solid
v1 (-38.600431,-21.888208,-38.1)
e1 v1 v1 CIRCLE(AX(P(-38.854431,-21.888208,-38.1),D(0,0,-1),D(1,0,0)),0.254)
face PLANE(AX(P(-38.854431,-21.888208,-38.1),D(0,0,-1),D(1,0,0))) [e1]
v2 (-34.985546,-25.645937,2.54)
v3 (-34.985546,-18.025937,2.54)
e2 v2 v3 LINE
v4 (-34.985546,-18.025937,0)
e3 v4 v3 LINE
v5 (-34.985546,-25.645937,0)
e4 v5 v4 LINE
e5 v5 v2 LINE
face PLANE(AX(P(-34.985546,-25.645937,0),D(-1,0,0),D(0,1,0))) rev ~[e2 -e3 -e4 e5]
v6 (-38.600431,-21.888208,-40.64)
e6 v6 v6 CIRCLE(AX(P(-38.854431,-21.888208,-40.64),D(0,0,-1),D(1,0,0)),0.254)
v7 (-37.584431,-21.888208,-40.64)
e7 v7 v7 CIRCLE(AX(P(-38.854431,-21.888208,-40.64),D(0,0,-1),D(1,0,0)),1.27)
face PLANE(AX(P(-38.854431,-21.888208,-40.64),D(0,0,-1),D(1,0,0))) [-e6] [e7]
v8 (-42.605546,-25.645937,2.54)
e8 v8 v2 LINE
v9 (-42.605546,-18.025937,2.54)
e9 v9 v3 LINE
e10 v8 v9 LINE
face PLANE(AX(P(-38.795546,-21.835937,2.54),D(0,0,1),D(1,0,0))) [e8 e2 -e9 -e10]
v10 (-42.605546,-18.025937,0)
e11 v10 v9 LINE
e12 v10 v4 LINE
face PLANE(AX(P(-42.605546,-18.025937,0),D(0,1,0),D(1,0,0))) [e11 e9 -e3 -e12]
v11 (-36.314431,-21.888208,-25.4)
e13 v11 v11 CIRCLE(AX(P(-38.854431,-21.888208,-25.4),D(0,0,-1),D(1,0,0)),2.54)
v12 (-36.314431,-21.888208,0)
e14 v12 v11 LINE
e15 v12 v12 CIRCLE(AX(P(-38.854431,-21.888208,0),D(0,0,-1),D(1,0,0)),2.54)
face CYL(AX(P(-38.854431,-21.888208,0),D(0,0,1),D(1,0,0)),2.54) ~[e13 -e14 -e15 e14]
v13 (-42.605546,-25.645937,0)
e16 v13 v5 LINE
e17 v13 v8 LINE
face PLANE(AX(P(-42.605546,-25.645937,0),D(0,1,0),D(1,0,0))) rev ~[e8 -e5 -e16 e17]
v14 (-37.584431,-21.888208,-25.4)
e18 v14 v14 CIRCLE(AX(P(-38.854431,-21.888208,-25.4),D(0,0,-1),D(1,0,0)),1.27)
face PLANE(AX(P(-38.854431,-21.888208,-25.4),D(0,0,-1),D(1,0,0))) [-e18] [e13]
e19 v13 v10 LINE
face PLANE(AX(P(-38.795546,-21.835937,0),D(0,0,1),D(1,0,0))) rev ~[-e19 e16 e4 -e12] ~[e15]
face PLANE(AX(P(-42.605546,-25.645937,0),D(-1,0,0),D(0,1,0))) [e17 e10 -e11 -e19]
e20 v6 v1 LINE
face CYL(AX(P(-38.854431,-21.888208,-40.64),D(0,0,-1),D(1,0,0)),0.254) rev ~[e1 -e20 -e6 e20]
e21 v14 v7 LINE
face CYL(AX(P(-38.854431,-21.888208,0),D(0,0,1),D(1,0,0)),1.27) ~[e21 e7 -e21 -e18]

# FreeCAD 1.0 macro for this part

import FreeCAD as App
import Part
import Sketcher
Q = App.Units.Quantity

doc = App.newDocument("Part")
body = doc.addObject("PartDesign::Body", "Body")

# Sketch on XY plane
sketch1 = body.newObject("Sketcher::SketchObject", "Sketch")
sketch1.AttachmentSupport = (doc.getObject("XY_Plane"), [""])
sketch1.MapMode = "FlatFace"
sketch1.addGeometry([
    Part.LineSegment(App.Vector(-42.605546, -18.025937, 0), App.Vector(-42.605546, -25.645937, 0)),
    Part.LineSegment(App.Vector(-42.605546, -25.645937, 0), App.Vector(-34.985546, -25.645937, 0)),
    Part.LineSegment(App.Vector(-34.985546, -25.645937, 0), App.Vector(-34.985546, -18.025937, 0)),
    Part.LineSegment(App.Vector(-34.985546, -18.025937, 0), App.Vector(-42.605546, -18.025937, 0)),
], False)
sketch1.addConstraint([
    Sketcher.Constraint("Coincident", 0, 2, 1, 1),
    Sketcher.Constraint("Coincident", 1, 2, 2, 1),
    Sketcher.Constraint("Coincident", 2, 2, 3, 1),
    Sketcher.Constraint("Coincident", 3, 2, 0, 1),
    Sketcher.Constraint("Vertical", 0),
    Sketcher.Constraint("Horizontal", 1),
    Sketcher.Constraint("Vertical", 2),
    Sketcher.Constraint("Horizontal", 3),
    Sketcher.Constraint("Equal", 3, 0),
    Sketcher.Constraint("DistanceX", 1, 1, 1, 2, Q("0.3 in")),
    Sketcher.Constraint("DistanceX", 0, 2, -1, 1, 42.605546),
    Sketcher.Constraint("DistanceY", 0, 2, -1, 1, 25.645937),
])
pad1 = body.newObject("PartDesign::Pad", "Pad")
pad1.Profile = sketch1
pad1.Length = Q("0.1 in")

# Sketch on XY plane
sketch2 = body.newObject("Sketcher::SketchObject", "Sketch001")
sketch2.AttachmentSupport = (doc.getObject("XY_Plane"), [""])
sketch2.MapMode = "FlatFace"
sketch2.addGeometry(Part.Circle(App.Vector(-38.854431, -21.888208, 0), App.Vector(0, 0, 1), 1.27), False)
sketch2.addConstraint([
    Sketcher.Constraint("Diameter", 0, Q("0.1 in")),
    Sketcher.Constraint("DistanceX", 0, 3, -1, 1, 38.854431),
    Sketcher.Constraint("DistanceY", 0, 3, -1, 1, 21.888208),
])
pad2 = body.newObject("PartDesign::Pad", "Pad001")
pad2.Profile = sketch2
pad2.Length = Q("1.6 in")
pad2.Reversed = True

# Sketch on XY plane
sketch3 = body.newObject("Sketcher::SketchObject", "Sketch002")
sketch3.AttachmentSupport = (doc.getObject("XY_Plane"), [""])
sketch3.MapMode = "FlatFace"
sketch3.AttachmentOffset = App.Placement(App.Vector(0, 0, -1.6 * 25.4), App.Rotation())
sketch3.addGeometry(Part.Circle(App.Vector(-38.854431, -21.888208, 0), App.Vector(0, 0, 1), 0.254), False)
sketch3.addConstraint([
    Sketcher.Constraint("Diameter", 0, Q("0.02 in")),
    Sketcher.Constraint("DistanceX", 0, 3, -1, 1, 38.854431),
    Sketcher.Constraint("DistanceY", 0, 3, -1, 1, 21.888208),
])
pocket1 = body.newObject("PartDesign::Pocket", "Pocket")
pocket1.Profile = sketch3
pocket1.Length = Q("0.1 in")
pocket1.Reversed = True

# Sketch on XY plane
sketch4 = body.newObject("Sketcher::SketchObject", "Sketch003")
sketch4.AttachmentSupport = (doc.getObject("XY_Plane"), [""])
sketch4.MapMode = "FlatFace"
sketch4.addGeometry([
    Part.Circle(App.Vector(-38.854431, -21.888208, 0), App.Vector(0, 0, 1), 2.54),
    Part.Circle(App.Vector(-38.854431, -21.888208, 0), App.Vector(0, 0, 1), 1.27),
], False)
sketch4.addConstraint([
    Sketcher.Constraint("Coincident", 1, 3, 0, 3),
    Sketcher.Constraint("Diameter", 0, Q("0.2 in")),
    Sketcher.Constraint("Diameter", 1, Q("0.1 in")),
    Sketcher.Constraint("DistanceX", 0, 3, -1, 1, 38.854431),
    Sketcher.Constraint("DistanceY", 0, 3, -1, 1, 21.888208),
])
pad3 = body.newObject("PartDesign::Pad", "Pad002")
pad3.Profile = sketch4
pad3.Length = Q("1 in")
pad3.Reversed = True

doc.recompute()
